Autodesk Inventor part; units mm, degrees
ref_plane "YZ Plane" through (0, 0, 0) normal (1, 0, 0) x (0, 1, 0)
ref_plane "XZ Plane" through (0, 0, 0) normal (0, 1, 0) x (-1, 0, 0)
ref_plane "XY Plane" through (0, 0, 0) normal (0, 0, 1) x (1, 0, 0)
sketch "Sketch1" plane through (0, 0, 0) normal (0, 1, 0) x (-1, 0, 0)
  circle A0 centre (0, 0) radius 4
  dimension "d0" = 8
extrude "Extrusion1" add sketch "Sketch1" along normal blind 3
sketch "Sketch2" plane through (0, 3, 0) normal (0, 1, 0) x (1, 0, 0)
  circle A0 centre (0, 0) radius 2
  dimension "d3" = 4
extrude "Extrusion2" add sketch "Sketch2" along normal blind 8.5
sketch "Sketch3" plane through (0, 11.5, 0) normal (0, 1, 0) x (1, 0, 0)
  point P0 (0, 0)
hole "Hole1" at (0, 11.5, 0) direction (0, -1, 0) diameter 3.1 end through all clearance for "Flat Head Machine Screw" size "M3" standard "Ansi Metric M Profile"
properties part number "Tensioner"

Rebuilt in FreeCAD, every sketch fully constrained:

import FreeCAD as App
import Part
import Sketcher
from FreeCAD import Vector

doc = App.newDocument("Part")
body = doc.addObject("PartDesign::Body", "Body")

sketch1 = doc.addObject("Sketcher::SketchObject", "Sketch")
body.addObject(sketch1)
sketch1.AttachmentSupport = (doc.XZ_Plane, [""])
sketch1.MapMode = "FlatFace"
sketch1.addGeometry(Part.Circle(Vector(0, 0, 0), Vector(0, 0, 1), 4), False)
sketch1.addConstraint(Sketcher.Constraint("Coincident", 0, 3, -1, 1))
sketch1.addConstraint(Sketcher.Constraint("Diameter", 0, 8.0))
pad1 = doc.addObject("PartDesign::Pad", "Pad")
body.addObject(pad1)
pad1.Profile = sketch1
pad1.Length = 3
pad1.Reversed = True

sketch2 = doc.addObject("Sketcher::SketchObject", "Sketch001")
body.addObject(sketch2)
sketch2.AttachmentSupport = (doc.XZ_Plane, [""])
sketch2.MapMode = "FlatFace"
sketch2.AttachmentOffset = App.Placement(Vector(0, 0, -3), App.Rotation())
sketch2.addGeometry(Part.Circle(Vector(0, 0, 0), Vector(0, 0, 1), 2), False)
sketch2.addConstraint(Sketcher.Constraint("Coincident", 0, 3, -1, 1))
sketch2.addConstraint(Sketcher.Constraint("Diameter", 0, 4.0))
pad2 = doc.addObject("PartDesign::Pad", "Pad001")
body.addObject(pad2)
pad2.Profile = sketch2
pad2.Length = 8.5
pad2.Reversed = True

sketch3 = doc.addObject("Sketcher::SketchObject", "Sketch002")
body.addObject(sketch3)
sketch3.AttachmentSupport = (doc.XZ_Plane, [""])
sketch3.MapMode = "FlatFace"
sketch3.AttachmentOffset = App.Placement(Vector(0, 0, -11.5), App.Rotation())
sketch3.addGeometry(Part.Circle(Vector(0, 0, 0), Vector(0, 0, 1), 1.6), False)
sketch3.addConstraint(Sketcher.Constraint("Coincident", 0, 3, -1, 1))
sketch3.addConstraint(Sketcher.Constraint("Diameter", 0, 3.1))
doc.recompute()
hole = doc.addObject("PartDesign::Hole", "Hole")
body.addObject(hole)
hole.Profile = sketch3
hole.ThreadType = "None"
hole.Diameter = 3.1
hole.DepthType = "ThroughAll"
hole.Reversed = True

doc.recompute()
